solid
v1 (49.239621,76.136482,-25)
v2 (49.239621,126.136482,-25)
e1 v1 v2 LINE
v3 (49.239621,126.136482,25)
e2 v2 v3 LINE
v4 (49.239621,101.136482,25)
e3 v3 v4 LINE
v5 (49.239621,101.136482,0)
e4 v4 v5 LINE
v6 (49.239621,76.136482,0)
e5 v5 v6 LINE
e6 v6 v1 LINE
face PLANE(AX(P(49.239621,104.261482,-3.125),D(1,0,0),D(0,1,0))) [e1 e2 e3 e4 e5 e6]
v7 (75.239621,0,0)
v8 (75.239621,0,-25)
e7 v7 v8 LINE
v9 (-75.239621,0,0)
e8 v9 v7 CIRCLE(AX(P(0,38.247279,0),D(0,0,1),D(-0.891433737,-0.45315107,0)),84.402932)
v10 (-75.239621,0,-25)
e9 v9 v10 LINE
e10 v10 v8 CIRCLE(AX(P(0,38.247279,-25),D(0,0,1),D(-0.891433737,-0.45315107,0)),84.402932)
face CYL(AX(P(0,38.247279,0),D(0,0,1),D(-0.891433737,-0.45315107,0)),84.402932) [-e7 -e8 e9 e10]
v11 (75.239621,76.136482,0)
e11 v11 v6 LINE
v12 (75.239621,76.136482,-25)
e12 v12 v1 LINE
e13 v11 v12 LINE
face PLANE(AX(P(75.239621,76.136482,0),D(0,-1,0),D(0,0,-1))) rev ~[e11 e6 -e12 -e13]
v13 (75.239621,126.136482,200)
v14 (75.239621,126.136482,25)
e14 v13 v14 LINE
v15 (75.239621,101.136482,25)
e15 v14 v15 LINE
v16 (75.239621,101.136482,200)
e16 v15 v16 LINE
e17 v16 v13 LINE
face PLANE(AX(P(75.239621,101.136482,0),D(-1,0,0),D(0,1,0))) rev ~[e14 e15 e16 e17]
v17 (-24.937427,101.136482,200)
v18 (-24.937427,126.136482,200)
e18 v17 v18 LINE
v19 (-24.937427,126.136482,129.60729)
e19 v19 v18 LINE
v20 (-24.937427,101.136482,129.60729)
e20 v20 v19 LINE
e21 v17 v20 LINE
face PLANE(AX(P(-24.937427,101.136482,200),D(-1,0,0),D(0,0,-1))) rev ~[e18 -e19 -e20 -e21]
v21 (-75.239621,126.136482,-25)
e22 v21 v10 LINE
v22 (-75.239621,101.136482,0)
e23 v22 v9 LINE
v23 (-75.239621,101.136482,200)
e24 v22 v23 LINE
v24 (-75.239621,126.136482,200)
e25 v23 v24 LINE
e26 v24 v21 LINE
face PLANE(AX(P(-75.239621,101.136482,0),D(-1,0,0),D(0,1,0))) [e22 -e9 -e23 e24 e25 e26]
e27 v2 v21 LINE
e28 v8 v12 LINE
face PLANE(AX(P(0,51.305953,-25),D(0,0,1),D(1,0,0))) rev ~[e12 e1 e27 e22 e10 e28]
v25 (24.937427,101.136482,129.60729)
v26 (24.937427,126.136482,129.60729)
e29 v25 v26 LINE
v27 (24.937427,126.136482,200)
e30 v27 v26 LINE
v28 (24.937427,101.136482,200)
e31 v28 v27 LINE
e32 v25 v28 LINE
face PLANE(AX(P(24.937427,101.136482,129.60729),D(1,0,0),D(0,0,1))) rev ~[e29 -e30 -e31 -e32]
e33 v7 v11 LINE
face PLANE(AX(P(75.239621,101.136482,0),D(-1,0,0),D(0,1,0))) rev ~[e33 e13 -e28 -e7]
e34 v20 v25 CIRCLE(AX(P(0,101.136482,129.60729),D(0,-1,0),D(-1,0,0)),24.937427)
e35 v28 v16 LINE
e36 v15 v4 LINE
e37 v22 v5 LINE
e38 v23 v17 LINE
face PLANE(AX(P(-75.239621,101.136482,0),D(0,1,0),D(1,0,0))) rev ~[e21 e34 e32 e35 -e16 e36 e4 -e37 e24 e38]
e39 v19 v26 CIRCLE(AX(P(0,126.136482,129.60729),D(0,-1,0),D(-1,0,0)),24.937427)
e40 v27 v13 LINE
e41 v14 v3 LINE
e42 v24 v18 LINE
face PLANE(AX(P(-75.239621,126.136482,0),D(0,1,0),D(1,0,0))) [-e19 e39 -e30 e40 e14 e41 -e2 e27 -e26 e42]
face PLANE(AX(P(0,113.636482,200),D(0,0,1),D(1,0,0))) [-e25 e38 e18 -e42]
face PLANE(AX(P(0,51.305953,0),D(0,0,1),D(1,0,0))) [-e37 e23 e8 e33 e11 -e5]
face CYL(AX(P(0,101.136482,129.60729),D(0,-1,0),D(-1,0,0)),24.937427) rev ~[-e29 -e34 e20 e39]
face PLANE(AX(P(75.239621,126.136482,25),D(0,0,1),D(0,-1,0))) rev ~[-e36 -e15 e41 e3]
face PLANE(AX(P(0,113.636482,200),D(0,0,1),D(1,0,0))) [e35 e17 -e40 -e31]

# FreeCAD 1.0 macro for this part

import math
import FreeCAD as App
import Part
import Sketcher
Q = App.Units.Quantity


def add_polygon(sketch, points):
    """Adds a closed chain of lines whose ends are joined by coincident constraints."""
    first, n = sketch.GeometryCount, len(points)
    for a, b in zip(points, points[1:] + points[:1]):
        sketch.addGeometry(Part.LineSegment(App.Vector(*a, 0), App.Vector(*b, 0)), False)
    for i in range(n):
        sketch.addConstraint(Sketcher.Constraint("Coincident", first + i, 2, first + (i + 1) % n, 1))

doc = App.newDocument("Part")
params = doc.addObject("Spreadsheet::Sheet", "Params")
for row, (alias, value) in enumerate([
    ("pad1_length", "25 mm"),
    ("sketch2_height", "25 mm"),
    ("pad2_length", "200 mm"),
    ("sketch4_width", "50 mm"),
    ("pocket2_length", "26 mm"),
], start=1):
    params.set(f"A{row}", alias)
    params.set(f"B{row}", "=" + value)
    params.setAlias(f"B{row}", alias)

body = doc.addObject("PartDesign::Body", "Body")

# Sketch on XY plane
sketch1 = body.newObject("Sketcher::SketchObject", "Sketch")
sketch1.AttachmentSupport = (doc.getObject("XY_Plane"), [""])
sketch1.MapMode = "FlatFace"
sketch1.addGeometry(Part.LineSegment(App.Vector(-75, 126, 0), App.Vector(-75, 0, 0)), False)
sketch1.addGeometry(Part.ArcOfCircle(Part.Circle(App.Vector(0, 38, 0), App.Vector(0, 0, 1), 84), math.radians(-153), math.radians(-27)), False)
sketch1.addGeometry(Part.LineSegment(App.Vector(75, 0, 0), App.Vector(75, 126, 0)), False)
sketch1.addGeometry(Part.LineSegment(App.Vector(75, 126, 0), App.Vector(-75, 126, 0)), False)
sketch1.addConstraint(Sketcher.Constraint("Coincident", 0, 2, 1, 1))
sketch1.addConstraint(Sketcher.Constraint("Coincident", 1, 2, 2, 1))
sketch1.addConstraint(Sketcher.Constraint("Coincident", 2, 2, 3, 1))
sketch1.addConstraint(Sketcher.Constraint("Coincident", 3, 2, 0, 1))
sketch1.addConstraint(Sketcher.Constraint("Vertical", 0))
sketch1.addConstraint(Sketcher.Constraint("Vertical", 2))
sketch1.addConstraint(Sketcher.Constraint("Horizontal", 3))
sketch1.addConstraint(Sketcher.Constraint("Symmetric", 0, 2, 1, 2, -1, 1))
sketch1.addConstraint(Sketcher.Constraint("PointOnObject", 1, 3, -2))
sketch1.addConstraint(Sketcher.Constraint("Radius", 1, Q("84.402932 mm")))
sketch1.addConstraint(Sketcher.Constraint("DistanceX", 3, 2, 3, 1, Q("150.479242 mm")))
sketch1.addConstraint(Sketcher.Constraint("DistanceY", 0, 2, 0, 1, Q("126.136482 mm")))
pad1 = body.newObject("PartDesign::Pad", "Pad")
pad1.Profile = sketch1
pad1.setExpression("Length", "Params.pad1_length")
pad1.Reversed = True

# Sketch on XY plane
sketch2 = body.newObject("Sketcher::SketchObject", "Sketch001")
sketch2.AttachmentSupport = (doc.getObject("XY_Plane"), [""])
sketch2.MapMode = "FlatFace"
add_polygon(sketch2, [(-75, 126), (-75, 101), (75, 101), (75, 126)])  # lines 0-3
sketch2.addConstraint(Sketcher.Constraint("Vertical", 0))
sketch2.addConstraint(Sketcher.Constraint("Horizontal", 1))
sketch2.addConstraint(Sketcher.Constraint("Vertical", 2))
sketch2.addConstraint(Sketcher.Constraint("Horizontal", 3))
sketch2.addConstraint(Sketcher.Constraint("DistanceY", 0, 2, 0, 1, Q("25 mm")))
sketch2.addConstraint(Sketcher.Constraint("DistanceX", 1, 1, 1, 2, Q("150.479242 mm")))
sketch2.addConstraint(Sketcher.Constraint("DistanceX", 0, 2, -1, 1, Q("75.239621 mm")))
sketch2.addConstraint(Sketcher.Constraint("DistanceY", -1, 1, 0, 2, Q("101.136482 mm")))
sketch2.setExpression("Constraints[8]", "Params.sketch2_height")
pad2 = body.newObject("PartDesign::Pad", "Pad001")
pad2.Profile = sketch2
pad2.setExpression("Length", "Params.pad2_length")

# Sketch on XZ plane
sketch3 = body.newObject("Sketcher::SketchObject", "Sketch002")
sketch3.AttachmentSupport = (doc.getObject("XZ_Plane"), [""])
sketch3.MapMode = "FlatFace"
sketch3.AttachmentOffset = App.Placement(App.Vector(0, 0, -101.136482), App.Rotation())
sketch3.addGeometry(Part.LineSegment(App.Vector(-25, 200, 0), App.Vector(-25, 130, 0)), False)
sketch3.addGeometry(Part.ArcOfCircle(Part.Circle(App.Vector(0, 130, 0), App.Vector(0, 0, 1), 25), math.radians(180), math.radians(360)), False)
sketch3.addGeometry(Part.LineSegment(App.Vector(25, 130, 0), App.Vector(25, 200, 0)), False)
sketch3.addGeometry(Part.LineSegment(App.Vector(25, 200, 0), App.Vector(-25, 200, 0)), False)
sketch3.addConstraint(Sketcher.Constraint("Tangent", 0, 2, 1, 1))
sketch3.addConstraint(Sketcher.Constraint("Tangent", 1, 2, 2, 1))
sketch3.addConstraint(Sketcher.Constraint("Coincident", 2, 2, 3, 1))
sketch3.addConstraint(Sketcher.Constraint("Coincident", 3, 2, 0, 1))
sketch3.addConstraint(Sketcher.Constraint("Vertical", 0))
sketch3.addConstraint(Sketcher.Constraint("Vertical", 2))
sketch3.addConstraint(Sketcher.Constraint("Horizontal", 3))
sketch3.addConstraint(Sketcher.Constraint("PointOnObject", 1, 3, -2))
sketch3.addConstraint(Sketcher.Constraint("DistanceY", -1, 1, 2, 2, Q("200 mm")))
sketch3.addConstraint(Sketcher.Constraint("Radius", 1, Q("24.937427 mm")))
sketch3.addConstraint(Sketcher.Constraint("DistanceY", 0, 2, 0, 1, Q("70.39271 mm")))
pocket1 = body.newObject("PartDesign::Pocket", "Pocket")
pocket1.Profile = sketch3
pocket1.Type = "ThroughAll"

# Sketch on YZ plane
sketch4 = body.newObject("Sketcher::SketchObject", "Sketch003")
sketch4.AttachmentSupport = (doc.getObject("YZ_Plane"), [""])
sketch4.MapMode = "FlatFace"
sketch4.AttachmentOffset = App.Placement(App.Vector(0, 0, 75.239621), App.Rotation())
add_polygon(sketch4, [(76, -25), (126, -25), (126, 25), (101, 25), (101, 0), (76, 0)])  # lines 0-5
sketch4.addConstraint(Sketcher.Constraint("Horizontal", 0))
sketch4.addConstraint(Sketcher.Constraint("Vertical", 1))
sketch4.addConstraint(Sketcher.Constraint("Horizontal", 2))
sketch4.addConstraint(Sketcher.Constraint("Vertical", 3))
sketch4.addConstraint(Sketcher.Constraint("Horizontal", 4))
sketch4.addConstraint(Sketcher.Constraint("Vertical", 5))
sketch4.addConstraint(Sketcher.Constraint("PointOnObject", 3, 2, -1))
sketch4.addConstraint(Sketcher.Constraint("Equal", 2, 4))
sketch4.addConstraint(Sketcher.Constraint("Equal", 0, 1))
sketch4.addConstraint(Sketcher.Constraint("Equal", 4, 3))
sketch4.addConstraint(Sketcher.Constraint("DistanceX", 0, 1, 0, 2, Q("50 mm")))
sketch4.addConstraint(Sketcher.Constraint("DistanceX", -1, 1, 0, 2, Q("126.136482 mm")))
sketch4.setExpression("Constraints[16]", "Params.sketch4_width")
pocket2 = body.newObject("PartDesign::Pocket", "Pocket001")
pocket2.Profile = sketch4
pocket2.setExpression("Length", "Params.pocket2_length")

doc.recompute()
